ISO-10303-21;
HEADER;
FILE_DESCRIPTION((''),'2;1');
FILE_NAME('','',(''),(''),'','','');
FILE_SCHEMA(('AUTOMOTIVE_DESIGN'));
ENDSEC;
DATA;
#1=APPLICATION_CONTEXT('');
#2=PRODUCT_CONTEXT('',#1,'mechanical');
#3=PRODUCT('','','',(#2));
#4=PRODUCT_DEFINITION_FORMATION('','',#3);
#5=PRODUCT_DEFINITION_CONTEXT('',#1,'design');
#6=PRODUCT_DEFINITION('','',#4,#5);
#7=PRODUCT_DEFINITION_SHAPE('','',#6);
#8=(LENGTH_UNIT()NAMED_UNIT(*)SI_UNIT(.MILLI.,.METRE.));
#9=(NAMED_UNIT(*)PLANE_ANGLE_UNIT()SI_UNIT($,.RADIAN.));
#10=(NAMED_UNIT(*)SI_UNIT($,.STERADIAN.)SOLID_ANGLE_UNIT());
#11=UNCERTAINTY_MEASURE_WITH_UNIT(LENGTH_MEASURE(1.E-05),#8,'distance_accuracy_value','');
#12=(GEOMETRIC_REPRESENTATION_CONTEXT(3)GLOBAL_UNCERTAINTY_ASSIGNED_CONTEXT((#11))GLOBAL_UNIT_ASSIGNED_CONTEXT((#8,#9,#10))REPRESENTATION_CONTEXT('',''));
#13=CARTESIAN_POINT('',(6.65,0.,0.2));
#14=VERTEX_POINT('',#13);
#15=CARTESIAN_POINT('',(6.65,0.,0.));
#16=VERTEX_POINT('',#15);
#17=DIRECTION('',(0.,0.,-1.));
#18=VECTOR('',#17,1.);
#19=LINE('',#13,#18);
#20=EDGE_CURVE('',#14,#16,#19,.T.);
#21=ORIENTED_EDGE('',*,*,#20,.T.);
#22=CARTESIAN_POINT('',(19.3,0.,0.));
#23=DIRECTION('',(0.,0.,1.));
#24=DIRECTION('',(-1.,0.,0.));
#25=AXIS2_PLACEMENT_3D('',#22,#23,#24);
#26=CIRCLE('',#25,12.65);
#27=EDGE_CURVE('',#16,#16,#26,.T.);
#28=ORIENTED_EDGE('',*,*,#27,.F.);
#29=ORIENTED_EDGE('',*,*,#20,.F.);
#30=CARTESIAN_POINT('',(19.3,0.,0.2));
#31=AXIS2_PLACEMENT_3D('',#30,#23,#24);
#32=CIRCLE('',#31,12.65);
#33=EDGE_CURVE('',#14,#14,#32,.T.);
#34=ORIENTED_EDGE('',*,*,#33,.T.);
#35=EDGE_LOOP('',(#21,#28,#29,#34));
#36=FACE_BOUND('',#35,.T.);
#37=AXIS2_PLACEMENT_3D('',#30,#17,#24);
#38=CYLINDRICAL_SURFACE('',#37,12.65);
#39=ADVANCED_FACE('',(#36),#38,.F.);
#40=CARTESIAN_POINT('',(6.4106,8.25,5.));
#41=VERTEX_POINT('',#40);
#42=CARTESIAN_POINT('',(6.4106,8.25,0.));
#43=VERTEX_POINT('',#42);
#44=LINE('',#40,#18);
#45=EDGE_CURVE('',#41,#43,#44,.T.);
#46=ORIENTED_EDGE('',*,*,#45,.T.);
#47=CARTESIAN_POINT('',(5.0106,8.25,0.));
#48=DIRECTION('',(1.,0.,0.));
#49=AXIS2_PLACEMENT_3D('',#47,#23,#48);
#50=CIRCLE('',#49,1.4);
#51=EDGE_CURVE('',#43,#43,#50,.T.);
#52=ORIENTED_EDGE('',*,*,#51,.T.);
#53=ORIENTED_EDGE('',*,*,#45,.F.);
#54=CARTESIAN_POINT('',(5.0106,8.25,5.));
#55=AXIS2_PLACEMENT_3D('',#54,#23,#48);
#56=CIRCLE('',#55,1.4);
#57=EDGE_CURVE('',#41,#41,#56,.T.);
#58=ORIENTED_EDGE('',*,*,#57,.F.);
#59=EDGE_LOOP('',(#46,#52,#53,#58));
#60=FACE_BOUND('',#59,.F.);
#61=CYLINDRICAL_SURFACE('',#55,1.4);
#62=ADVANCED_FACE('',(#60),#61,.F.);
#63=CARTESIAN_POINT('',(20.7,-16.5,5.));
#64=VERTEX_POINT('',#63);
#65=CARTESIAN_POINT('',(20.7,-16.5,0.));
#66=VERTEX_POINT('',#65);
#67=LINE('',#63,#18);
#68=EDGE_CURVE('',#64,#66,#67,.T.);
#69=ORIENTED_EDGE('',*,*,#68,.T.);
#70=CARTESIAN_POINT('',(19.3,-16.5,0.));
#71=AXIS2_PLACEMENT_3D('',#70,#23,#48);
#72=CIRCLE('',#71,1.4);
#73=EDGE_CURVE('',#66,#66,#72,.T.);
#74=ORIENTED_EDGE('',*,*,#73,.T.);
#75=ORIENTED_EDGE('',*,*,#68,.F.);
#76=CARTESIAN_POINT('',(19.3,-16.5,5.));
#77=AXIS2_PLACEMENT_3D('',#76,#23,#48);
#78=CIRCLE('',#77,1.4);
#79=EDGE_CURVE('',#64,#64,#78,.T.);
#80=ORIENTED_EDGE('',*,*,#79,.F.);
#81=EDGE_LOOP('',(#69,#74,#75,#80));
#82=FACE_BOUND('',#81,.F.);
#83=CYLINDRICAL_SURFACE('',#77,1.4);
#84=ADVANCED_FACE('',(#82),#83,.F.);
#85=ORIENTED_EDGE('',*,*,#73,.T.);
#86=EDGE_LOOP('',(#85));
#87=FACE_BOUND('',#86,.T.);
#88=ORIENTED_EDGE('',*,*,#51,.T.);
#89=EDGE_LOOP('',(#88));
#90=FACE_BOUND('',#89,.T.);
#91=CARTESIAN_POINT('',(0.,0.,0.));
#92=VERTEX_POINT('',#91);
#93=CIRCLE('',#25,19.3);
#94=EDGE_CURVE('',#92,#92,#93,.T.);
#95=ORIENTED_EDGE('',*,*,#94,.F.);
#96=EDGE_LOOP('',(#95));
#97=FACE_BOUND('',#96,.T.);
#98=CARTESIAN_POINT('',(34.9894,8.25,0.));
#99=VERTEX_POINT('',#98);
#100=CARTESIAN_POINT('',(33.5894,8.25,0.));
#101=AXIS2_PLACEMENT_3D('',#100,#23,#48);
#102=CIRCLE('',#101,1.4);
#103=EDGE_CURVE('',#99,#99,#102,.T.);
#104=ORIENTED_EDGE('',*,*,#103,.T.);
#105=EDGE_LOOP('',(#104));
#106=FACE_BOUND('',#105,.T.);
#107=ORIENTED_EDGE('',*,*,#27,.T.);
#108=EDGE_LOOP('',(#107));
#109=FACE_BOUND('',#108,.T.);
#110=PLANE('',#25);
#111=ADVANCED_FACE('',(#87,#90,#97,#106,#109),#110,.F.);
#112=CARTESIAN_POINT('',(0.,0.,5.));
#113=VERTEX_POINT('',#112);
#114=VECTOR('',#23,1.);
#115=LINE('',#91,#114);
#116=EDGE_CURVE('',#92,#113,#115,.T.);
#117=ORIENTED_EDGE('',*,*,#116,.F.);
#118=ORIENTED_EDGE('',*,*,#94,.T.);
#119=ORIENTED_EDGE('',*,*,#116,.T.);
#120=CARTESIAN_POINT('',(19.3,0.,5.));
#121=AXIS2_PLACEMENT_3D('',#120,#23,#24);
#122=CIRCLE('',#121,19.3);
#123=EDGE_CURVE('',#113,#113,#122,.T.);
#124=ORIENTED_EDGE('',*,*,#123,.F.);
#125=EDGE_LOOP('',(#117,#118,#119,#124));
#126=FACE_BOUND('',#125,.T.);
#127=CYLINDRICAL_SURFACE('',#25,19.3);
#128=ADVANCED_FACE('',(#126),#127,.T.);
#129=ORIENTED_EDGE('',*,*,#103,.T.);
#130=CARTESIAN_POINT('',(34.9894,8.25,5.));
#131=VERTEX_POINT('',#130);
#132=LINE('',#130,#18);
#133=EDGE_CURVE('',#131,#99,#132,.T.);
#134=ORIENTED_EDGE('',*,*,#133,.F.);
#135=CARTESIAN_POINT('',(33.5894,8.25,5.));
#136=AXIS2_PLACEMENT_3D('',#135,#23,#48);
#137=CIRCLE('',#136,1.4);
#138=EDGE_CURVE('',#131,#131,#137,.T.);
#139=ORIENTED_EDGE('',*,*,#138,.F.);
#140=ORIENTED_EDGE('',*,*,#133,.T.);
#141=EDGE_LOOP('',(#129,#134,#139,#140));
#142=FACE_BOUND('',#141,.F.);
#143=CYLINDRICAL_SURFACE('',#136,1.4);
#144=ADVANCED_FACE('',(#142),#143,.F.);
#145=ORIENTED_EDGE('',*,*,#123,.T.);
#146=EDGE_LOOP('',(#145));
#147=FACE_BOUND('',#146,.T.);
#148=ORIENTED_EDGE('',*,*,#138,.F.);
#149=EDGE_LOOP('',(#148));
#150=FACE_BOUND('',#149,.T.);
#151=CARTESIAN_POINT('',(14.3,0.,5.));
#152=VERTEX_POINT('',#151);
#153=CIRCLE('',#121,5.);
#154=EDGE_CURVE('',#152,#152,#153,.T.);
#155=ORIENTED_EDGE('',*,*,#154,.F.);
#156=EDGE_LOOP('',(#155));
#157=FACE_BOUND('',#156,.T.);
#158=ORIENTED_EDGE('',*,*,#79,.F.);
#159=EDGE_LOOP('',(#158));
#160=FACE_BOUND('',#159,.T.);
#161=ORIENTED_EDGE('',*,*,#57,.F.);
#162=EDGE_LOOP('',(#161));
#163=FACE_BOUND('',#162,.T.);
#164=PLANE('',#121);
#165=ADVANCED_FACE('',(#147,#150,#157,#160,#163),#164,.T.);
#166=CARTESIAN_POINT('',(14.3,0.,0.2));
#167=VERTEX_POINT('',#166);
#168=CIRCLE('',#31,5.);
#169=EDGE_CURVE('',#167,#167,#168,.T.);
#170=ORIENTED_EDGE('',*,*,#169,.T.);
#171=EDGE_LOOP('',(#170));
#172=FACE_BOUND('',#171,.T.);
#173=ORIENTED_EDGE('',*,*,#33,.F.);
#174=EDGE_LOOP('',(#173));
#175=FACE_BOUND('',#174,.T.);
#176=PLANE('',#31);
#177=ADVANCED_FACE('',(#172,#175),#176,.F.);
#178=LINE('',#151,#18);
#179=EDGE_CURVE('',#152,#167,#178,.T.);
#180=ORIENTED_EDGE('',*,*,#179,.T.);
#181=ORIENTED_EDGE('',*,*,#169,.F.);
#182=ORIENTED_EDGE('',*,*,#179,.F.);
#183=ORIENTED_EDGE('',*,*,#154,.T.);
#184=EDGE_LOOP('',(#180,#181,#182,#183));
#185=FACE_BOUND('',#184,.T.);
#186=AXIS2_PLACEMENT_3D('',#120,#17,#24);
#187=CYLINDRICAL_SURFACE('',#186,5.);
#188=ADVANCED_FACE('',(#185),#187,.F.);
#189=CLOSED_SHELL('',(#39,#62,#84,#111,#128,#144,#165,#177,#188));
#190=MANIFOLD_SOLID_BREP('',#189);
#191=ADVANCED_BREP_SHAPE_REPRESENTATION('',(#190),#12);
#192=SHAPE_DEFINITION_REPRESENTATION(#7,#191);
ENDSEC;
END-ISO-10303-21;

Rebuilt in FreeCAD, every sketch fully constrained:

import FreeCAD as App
import Part
import Sketcher
from FreeCAD import Vector
Q = App.Units.Quantity

doc = App.newDocument("Part")
body = doc.addObject("PartDesign::Body", "Body")

# Sketch on XZ plane
sketch1 = body.newObject("Sketcher::SketchObject", "Sketch")
sketch1.AttachmentSupport = (doc.getObject("XZ_Plane"), [""])
sketch1.MapMode = "FlatFace"
sketch1.addGeometry([
    Part.LineSegment(Vector(6.65, 0.2, 0), Vector(6.65, 0, 0)),  # 0
    Part.LineSegment(Vector(6.65, 0, 0), Vector(0, 0, 0)),  # 1
    Part.LineSegment(Vector(0, 0, 0), Vector(0, 5, 0)),  # 2
    Part.LineSegment(Vector(0, 5, 0), Vector(14.3, 5, 0)),  # 3
    Part.LineSegment(Vector(14.3, 5, 0), Vector(14.3, 0.2, 0)),  # 4
    Part.LineSegment(Vector(14.3, 0.2, 0), Vector(6.65, 0.2, 0)),  # 5
], False)
sketch1.addGeometry(Part.LineSegment(Vector(19.3, 0, 0), Vector(19.3, 5, 0)), True)  # axis
sketch1.addConstraint([
    Sketcher.Constraint("Coincident", 0, 2, 1, 1),
    Sketcher.Constraint("Coincident", 1, 2, 2, 1),
    Sketcher.Constraint("Coincident", 2, 2, 3, 1),
    Sketcher.Constraint("Coincident", 3, 2, 4, 1),
    Sketcher.Constraint("Coincident", 4, 2, 5, 1),
    Sketcher.Constraint("Coincident", 5, 2, 0, 1),
    Sketcher.Constraint("Vertical", 0),
    Sketcher.Constraint("Horizontal", 1),
    Sketcher.Constraint("Vertical", 2),
    Sketcher.Constraint("Horizontal", 3),
    Sketcher.Constraint("Vertical", 4),
    Sketcher.Constraint("Horizontal", 5),
    Sketcher.Constraint("Vertical", 6),
    Sketcher.Constraint("Coincident", 1, 2, -1, 1),
    Sketcher.Constraint("PointOnObject", 6, 1, -1),
    Sketcher.Constraint("Horizontal", 3, 2, 6, 2),
    Sketcher.Constraint("DistanceY", 2, 1, 2, 2, Q("5 mm")),
    Sketcher.Constraint("DistanceY", 0, 2, 0, 1, Q("0.2 mm")),
    Sketcher.Constraint("DistanceX", 4, 2, 6, 1, Q("5 mm")),
    Sketcher.Constraint("DistanceX", 0, 2, 6, 1, Q("12.65 mm")),
    Sketcher.Constraint("DistanceX", 3, 1, 3, 2, Q("14.3 mm")),
])
revolution = body.newObject("PartDesign::Revolution", "Revolution")
revolution.Profile = sketch1
revolution.ReferenceAxis = (sketch1, ["Axis0"])
revolution.Angle = 360

# Sketch on XY plane
sketch2 = body.newObject("Sketcher::SketchObject", "Sketch001")
sketch2.AttachmentSupport = (doc.getObject("XY_Plane"), [""])
sketch2.MapMode = "FlatFace"
sketch2.AttachmentOffset = App.Placement(Vector(0, 0, 5), App.Rotation())
sketch2.addGeometry([
    Part.Circle(Vector(19.3, -16.5, 0), Vector(0, 0, 1), 1.4),
    Part.Circle(Vector(5, 8.2, 0), Vector(0, 0, 1), 1.4),
    Part.Circle(Vector(33.6, 8.2, 0), Vector(0, 0, 1), 1.4),
], False)
sketch2.addConstraint([
    Sketcher.Constraint("Equal", 0, 1),
    Sketcher.Constraint("Equal", 1, 2),
    Sketcher.Constraint("Horizontal", 1, 3, 2, 3),
    Sketcher.Constraint("Diameter", 0, Q("2.8 mm")),
    Sketcher.Constraint("DistanceX", -1, 1, 0, 3, Q("19.3 mm")),
    Sketcher.Constraint("DistanceY", 0, 3, -1, 1, Q("16.5 mm")),
    Sketcher.Constraint("DistanceY", -1, 1, 1, 3, Q("8.25 mm")),
    Sketcher.Constraint("DistanceX", -1, 1, 1, 3, Q("5.0106 mm")),
    Sketcher.Constraint("DistanceX", -1, 1, 2, 3, Q("33.5894 mm")),
])
pocket1 = body.newObject("PartDesign::Pocket", "Pocket")
pocket1.Profile = sketch2
pocket1.Type = "ThroughAll"

doc.recompute()
